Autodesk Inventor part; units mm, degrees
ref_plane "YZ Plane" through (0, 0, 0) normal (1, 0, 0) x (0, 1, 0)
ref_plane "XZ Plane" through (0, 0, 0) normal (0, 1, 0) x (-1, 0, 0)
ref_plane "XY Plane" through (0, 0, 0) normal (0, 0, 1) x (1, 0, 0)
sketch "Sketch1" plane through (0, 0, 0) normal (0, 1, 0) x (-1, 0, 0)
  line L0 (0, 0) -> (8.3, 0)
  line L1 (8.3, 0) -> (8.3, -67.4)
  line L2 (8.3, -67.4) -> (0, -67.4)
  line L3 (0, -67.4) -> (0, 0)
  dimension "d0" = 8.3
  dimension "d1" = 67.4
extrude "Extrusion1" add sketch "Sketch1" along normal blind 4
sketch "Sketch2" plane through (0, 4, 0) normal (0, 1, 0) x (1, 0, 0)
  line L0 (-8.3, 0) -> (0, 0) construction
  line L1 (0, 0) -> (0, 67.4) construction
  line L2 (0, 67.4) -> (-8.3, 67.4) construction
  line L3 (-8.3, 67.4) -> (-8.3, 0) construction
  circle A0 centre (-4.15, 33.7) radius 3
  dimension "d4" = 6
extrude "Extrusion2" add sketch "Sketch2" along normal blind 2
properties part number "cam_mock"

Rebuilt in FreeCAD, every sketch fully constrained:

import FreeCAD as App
import Part
import Sketcher
from FreeCAD import Vector


def add_polygon(sketch, points):
    """Adds a closed chain of lines whose ends are joined by coincident constraints."""
    first, n = sketch.GeometryCount, len(points)
    for a, b in zip(points, points[1:] + points[:1]):
        sketch.addGeometry(Part.LineSegment(App.Vector(*a, 0), App.Vector(*b, 0)), False)
    for i in range(n):
        sketch.addConstraint(Sketcher.Constraint("Coincident", first + i, 2, first + (i + 1) % n, 1))

doc = App.newDocument("Part")
body = doc.addObject("PartDesign::Body", "Body")

sketch1 = body.newObject("Sketcher::SketchObject", "Sketch")
sketch1.AttachmentSupport = (doc.getObject("XZ_Plane"), [""])
sketch1.MapMode = "FlatFace"
add_polygon(sketch1, [(-8.3, 0), (0, 0), (0, -67.4), (-8.3, -67.4)])
sketch1.addConstraint([
    Sketcher.Constraint("Horizontal", 0),
    Sketcher.Constraint("Vertical", 1),
    Sketcher.Constraint("Horizontal", 2),
    Sketcher.Constraint("Vertical", 3),
    Sketcher.Constraint("Coincident", 0, 2, -1, 1),
    Sketcher.Constraint("DistanceX", 0, 1, 0, 2, 8.3),
    Sketcher.Constraint("DistanceY", 1, 2, 1, 1, 67.4),
])
pad1 = body.newObject("PartDesign::Pad", "Pad")
pad1.Profile = sketch1
pad1.Length = 4
pad1.Reversed = True

sketch2 = body.newObject("Sketcher::SketchObject", "Sketch001")
sketch2.AttachmentSupport = (doc.getObject("XZ_Plane"), [""])
sketch2.MapMode = "FlatFace"
sketch2.AttachmentOffset = App.Placement(Vector(0, 0, -4), App.Rotation())
sketch2.addGeometry(Part.Circle(Vector(-4.15, -33.7, 0), Vector(0, 0, 1), 3), False)
sketch2.addConstraint([
    Sketcher.Constraint("Diameter", 0, 6.0),
    Sketcher.Constraint("DistanceY", 0, 3, -1, 1, 33.7),
    Sketcher.Constraint("DistanceX", 0, 3, -1, 1, 4.15),
])
pad2 = body.newObject("PartDesign::Pad", "Pad001")
pad2.Profile = sketch2
pad2.Length = 2
pad2.Reversed = True

doc.recompute()
